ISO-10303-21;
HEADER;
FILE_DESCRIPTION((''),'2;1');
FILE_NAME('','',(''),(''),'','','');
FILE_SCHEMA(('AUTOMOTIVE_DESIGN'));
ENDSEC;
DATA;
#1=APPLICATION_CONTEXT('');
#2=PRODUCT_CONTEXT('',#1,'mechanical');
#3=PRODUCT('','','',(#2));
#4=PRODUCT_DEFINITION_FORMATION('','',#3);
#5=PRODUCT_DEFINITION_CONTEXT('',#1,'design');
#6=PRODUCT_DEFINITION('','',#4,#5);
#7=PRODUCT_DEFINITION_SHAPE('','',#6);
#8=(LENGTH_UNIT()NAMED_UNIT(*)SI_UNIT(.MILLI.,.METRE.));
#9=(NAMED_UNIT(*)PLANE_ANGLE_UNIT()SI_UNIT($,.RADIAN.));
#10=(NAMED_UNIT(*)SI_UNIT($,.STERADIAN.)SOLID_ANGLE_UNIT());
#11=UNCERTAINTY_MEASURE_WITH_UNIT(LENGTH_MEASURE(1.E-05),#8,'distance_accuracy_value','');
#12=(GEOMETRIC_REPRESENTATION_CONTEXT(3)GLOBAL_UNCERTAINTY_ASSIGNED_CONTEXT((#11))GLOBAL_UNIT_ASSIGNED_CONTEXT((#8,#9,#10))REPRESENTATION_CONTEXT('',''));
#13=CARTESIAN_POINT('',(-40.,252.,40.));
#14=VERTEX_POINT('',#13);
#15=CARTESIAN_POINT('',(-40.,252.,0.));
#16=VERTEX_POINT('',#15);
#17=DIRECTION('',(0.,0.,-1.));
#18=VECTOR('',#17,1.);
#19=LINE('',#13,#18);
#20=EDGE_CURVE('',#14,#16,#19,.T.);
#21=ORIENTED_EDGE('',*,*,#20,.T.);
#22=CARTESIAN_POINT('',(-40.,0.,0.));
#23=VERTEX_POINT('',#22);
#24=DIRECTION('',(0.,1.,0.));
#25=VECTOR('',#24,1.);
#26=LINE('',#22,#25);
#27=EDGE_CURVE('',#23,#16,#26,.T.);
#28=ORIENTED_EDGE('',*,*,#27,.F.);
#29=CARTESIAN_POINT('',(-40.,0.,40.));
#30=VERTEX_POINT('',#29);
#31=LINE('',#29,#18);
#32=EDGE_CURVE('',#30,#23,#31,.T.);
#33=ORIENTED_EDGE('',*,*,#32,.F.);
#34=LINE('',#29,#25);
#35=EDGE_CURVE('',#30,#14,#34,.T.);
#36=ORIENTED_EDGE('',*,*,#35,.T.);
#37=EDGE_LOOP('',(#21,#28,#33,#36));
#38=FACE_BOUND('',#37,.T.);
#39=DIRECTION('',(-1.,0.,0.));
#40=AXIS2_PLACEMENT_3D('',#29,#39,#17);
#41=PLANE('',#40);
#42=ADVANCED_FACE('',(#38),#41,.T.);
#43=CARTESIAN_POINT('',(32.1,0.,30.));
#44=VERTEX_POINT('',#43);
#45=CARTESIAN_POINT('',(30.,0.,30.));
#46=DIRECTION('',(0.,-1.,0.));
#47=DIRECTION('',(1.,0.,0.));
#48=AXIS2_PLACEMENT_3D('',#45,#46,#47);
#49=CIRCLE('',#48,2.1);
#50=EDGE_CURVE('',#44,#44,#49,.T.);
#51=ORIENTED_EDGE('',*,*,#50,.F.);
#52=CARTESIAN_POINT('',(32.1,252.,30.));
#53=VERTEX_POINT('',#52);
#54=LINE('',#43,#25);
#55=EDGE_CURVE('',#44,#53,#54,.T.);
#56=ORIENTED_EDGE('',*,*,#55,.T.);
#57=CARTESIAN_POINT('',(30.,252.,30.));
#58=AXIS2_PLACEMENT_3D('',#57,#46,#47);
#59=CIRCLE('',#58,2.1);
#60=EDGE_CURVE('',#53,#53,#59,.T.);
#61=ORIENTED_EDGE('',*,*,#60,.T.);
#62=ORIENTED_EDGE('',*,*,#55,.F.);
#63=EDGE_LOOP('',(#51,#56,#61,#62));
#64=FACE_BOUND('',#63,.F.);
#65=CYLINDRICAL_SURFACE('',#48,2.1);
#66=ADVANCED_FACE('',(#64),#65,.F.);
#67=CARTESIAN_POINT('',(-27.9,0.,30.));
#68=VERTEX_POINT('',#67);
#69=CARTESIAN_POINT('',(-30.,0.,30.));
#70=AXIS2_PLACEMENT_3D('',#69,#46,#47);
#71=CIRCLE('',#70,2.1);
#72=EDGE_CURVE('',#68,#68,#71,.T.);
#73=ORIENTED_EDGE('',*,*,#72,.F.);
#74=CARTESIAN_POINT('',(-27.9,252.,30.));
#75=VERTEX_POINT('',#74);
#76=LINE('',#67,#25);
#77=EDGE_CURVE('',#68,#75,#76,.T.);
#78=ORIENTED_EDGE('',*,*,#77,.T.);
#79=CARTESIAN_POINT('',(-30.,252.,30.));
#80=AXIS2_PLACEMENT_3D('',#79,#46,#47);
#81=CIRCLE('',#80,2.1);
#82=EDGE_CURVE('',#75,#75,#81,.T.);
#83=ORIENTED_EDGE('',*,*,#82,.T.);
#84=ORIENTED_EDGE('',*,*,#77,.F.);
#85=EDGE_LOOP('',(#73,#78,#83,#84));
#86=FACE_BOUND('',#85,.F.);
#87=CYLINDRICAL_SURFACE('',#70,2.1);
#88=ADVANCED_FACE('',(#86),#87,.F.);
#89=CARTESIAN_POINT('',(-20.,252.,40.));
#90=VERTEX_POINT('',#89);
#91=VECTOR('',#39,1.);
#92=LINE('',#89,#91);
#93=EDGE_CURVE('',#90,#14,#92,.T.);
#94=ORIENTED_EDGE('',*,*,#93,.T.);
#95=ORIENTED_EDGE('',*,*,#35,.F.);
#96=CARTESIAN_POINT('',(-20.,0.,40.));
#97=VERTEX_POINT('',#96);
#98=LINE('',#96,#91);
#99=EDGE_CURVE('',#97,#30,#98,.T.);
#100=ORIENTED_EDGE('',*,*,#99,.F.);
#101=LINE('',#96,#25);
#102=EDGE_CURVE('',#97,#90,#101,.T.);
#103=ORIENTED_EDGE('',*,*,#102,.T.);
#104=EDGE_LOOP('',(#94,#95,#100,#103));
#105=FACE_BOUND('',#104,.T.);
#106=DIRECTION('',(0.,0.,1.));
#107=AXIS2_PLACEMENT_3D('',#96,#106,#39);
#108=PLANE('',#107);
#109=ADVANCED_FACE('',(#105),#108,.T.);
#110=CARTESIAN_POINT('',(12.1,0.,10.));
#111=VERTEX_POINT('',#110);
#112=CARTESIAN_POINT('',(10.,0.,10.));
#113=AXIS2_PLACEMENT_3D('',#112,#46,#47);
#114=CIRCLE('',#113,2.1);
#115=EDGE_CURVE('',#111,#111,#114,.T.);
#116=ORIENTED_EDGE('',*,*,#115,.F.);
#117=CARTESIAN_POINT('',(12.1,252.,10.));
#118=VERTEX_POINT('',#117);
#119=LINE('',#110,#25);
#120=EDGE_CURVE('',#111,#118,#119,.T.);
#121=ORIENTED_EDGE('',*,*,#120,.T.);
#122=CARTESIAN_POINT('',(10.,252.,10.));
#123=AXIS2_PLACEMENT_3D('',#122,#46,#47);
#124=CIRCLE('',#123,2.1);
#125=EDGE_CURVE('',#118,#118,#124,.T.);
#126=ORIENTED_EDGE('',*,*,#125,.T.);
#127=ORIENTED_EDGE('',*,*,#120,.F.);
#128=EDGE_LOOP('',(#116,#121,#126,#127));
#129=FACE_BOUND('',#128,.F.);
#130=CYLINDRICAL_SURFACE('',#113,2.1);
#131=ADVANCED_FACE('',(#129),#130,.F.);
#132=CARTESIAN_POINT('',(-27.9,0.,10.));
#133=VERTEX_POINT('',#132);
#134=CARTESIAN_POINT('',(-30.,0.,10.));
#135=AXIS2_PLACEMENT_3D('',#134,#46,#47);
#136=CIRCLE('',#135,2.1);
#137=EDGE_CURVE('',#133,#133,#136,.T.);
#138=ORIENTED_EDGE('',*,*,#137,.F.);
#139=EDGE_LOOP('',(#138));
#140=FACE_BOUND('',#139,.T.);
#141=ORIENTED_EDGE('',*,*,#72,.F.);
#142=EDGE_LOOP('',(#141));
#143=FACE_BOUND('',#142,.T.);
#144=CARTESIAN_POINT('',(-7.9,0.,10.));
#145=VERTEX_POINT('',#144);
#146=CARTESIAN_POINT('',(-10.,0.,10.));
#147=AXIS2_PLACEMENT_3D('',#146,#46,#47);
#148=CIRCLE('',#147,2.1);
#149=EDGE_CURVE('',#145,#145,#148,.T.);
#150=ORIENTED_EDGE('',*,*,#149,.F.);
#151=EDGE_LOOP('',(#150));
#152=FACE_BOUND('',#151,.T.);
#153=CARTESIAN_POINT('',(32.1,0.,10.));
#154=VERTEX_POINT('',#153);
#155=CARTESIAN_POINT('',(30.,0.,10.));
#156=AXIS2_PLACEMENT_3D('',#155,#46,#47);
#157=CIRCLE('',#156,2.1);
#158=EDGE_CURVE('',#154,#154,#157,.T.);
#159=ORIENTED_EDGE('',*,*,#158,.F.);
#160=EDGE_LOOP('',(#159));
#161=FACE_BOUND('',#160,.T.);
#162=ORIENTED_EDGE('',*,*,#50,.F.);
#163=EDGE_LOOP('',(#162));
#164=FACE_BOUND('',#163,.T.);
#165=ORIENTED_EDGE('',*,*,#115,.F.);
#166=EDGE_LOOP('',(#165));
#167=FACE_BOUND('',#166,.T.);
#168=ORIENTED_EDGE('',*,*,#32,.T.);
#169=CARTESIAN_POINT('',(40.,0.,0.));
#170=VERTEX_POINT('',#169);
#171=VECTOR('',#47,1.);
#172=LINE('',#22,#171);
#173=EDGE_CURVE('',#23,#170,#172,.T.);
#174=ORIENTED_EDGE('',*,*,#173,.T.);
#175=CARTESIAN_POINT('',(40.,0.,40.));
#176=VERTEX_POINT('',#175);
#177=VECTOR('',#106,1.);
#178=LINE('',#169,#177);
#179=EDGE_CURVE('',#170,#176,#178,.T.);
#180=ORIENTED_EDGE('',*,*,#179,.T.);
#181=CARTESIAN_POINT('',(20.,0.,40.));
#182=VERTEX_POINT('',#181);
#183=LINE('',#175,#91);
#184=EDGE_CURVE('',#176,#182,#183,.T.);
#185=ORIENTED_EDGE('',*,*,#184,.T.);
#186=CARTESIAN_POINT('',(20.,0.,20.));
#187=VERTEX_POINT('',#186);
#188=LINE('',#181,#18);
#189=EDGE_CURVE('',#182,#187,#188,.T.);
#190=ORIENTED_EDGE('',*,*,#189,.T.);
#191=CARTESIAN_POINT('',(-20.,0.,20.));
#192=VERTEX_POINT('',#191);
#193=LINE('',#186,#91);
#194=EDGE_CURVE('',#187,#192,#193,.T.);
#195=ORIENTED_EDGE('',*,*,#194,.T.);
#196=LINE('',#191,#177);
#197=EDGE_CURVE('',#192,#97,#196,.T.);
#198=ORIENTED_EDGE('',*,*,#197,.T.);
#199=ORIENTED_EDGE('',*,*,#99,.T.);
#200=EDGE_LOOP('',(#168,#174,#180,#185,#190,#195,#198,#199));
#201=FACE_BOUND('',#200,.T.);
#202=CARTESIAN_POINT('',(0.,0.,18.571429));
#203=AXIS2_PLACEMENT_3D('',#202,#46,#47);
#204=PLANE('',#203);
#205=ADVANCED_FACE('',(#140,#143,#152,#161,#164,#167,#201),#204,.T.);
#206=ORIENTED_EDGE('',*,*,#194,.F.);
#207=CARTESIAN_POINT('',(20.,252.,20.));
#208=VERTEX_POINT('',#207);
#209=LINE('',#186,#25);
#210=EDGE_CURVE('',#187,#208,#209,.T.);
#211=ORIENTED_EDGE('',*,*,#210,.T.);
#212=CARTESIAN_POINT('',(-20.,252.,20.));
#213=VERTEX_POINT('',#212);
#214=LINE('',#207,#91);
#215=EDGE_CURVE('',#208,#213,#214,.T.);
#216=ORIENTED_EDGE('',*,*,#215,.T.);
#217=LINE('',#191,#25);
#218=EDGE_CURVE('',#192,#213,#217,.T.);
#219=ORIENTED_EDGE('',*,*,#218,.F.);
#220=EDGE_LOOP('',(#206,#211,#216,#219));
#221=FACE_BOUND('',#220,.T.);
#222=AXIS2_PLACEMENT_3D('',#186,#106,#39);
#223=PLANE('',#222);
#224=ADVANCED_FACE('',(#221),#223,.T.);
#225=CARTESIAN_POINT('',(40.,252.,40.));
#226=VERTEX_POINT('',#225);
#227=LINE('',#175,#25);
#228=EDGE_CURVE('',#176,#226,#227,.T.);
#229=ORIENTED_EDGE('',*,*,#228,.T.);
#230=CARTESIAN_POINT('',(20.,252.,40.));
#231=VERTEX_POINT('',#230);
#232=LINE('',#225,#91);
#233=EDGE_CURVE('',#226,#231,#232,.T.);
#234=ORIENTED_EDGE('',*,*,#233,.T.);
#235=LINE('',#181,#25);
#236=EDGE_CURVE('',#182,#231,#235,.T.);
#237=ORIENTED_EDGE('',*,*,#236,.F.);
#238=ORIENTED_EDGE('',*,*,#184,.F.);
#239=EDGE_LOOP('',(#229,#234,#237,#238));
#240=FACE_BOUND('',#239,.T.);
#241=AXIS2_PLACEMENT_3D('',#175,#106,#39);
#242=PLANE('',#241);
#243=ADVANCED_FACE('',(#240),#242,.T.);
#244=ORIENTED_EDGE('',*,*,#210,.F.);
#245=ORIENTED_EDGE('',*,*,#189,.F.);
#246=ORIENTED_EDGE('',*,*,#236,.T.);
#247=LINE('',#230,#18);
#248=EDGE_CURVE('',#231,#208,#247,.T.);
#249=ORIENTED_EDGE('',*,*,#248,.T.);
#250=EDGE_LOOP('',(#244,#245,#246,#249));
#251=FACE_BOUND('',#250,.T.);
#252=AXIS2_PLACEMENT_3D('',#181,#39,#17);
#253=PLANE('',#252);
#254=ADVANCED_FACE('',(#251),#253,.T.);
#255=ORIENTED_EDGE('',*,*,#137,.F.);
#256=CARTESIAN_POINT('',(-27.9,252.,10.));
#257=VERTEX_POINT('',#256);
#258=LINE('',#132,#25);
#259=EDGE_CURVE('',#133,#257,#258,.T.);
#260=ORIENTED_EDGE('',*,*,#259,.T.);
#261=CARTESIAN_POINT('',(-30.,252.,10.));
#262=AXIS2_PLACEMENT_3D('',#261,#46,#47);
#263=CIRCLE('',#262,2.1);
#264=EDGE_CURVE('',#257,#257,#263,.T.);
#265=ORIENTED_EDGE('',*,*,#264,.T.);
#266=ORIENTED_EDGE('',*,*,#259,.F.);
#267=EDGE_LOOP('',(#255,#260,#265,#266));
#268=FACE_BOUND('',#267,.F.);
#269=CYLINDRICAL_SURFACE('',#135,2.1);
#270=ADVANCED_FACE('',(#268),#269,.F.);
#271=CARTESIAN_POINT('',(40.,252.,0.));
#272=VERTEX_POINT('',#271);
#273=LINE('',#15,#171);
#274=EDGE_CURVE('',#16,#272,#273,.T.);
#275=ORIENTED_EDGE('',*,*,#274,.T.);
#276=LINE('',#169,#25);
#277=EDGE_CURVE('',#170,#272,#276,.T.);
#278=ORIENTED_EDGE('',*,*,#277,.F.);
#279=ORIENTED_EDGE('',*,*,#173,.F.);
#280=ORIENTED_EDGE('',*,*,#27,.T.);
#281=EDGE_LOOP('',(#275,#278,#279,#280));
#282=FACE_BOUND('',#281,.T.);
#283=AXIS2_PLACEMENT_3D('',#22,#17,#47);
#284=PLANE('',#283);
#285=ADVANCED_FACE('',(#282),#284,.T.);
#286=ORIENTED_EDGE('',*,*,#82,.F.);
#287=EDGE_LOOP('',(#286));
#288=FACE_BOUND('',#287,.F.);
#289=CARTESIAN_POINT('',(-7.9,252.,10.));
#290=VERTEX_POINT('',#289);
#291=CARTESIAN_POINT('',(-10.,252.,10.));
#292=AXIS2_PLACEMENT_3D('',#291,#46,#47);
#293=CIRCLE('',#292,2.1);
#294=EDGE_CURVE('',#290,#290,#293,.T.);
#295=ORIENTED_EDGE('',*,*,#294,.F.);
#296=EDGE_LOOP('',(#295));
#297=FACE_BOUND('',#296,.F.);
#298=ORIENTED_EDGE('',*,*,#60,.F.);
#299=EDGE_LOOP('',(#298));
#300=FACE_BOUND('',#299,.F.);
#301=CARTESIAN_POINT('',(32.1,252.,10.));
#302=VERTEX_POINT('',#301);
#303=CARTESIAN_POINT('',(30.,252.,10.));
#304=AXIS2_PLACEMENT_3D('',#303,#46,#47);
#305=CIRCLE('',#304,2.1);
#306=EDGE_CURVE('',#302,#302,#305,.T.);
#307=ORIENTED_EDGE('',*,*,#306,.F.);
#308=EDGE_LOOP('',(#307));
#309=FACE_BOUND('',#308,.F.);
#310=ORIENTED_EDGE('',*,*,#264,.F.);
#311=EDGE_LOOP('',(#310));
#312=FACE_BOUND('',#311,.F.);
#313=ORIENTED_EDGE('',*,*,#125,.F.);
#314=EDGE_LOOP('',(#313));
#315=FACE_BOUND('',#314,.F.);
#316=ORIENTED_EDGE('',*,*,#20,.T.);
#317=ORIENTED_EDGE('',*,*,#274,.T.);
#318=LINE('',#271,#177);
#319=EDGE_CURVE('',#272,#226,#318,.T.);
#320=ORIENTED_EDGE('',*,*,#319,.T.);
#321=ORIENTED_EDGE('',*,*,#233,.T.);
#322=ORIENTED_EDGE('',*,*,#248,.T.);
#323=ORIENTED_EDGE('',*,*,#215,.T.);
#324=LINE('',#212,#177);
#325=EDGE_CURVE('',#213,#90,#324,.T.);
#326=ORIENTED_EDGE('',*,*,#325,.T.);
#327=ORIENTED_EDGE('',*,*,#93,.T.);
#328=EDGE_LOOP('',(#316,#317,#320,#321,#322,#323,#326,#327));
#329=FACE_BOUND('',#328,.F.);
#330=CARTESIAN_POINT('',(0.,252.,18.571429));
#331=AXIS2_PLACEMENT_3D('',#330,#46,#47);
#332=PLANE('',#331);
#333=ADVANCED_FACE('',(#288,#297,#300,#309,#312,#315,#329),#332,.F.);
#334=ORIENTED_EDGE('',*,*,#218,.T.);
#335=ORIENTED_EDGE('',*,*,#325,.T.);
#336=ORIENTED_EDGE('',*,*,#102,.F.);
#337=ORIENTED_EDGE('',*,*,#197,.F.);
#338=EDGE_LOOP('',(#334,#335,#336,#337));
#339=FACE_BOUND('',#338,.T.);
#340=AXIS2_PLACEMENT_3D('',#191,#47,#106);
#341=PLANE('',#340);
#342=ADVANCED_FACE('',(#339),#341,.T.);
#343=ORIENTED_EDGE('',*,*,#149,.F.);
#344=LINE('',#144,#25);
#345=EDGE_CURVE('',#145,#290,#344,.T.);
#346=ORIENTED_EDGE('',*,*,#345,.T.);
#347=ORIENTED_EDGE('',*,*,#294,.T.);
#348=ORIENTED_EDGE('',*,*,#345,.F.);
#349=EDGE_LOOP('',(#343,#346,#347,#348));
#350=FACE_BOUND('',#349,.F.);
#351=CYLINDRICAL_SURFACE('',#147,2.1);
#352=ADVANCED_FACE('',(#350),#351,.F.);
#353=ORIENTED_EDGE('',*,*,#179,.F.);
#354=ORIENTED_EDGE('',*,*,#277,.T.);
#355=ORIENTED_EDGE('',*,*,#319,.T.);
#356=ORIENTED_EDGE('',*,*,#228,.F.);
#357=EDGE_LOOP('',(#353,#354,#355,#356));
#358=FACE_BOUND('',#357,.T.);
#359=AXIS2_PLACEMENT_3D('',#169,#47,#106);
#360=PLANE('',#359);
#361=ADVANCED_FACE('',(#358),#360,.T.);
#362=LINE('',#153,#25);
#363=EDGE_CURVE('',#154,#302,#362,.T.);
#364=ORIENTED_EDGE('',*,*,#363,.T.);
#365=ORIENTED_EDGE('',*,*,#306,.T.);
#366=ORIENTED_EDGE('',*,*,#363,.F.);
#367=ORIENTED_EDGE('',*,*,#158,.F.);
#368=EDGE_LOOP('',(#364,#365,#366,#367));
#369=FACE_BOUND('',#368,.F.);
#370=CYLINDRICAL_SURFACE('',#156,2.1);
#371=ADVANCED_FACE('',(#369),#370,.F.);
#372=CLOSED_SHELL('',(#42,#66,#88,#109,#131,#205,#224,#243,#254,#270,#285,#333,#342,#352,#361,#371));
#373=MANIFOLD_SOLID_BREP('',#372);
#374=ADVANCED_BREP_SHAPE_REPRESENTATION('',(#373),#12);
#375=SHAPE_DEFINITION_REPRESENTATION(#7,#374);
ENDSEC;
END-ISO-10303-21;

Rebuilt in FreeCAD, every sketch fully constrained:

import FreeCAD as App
import Part
import Sketcher
from FreeCAD import Vector
Q = App.Units.Quantity


def add_polygon(sketch, points):
    """Adds a closed chain of lines whose ends are joined by coincident constraints."""
    first, n = sketch.GeometryCount, len(points)
    for a, b in zip(points, points[1:] + points[:1]):
        sketch.addGeometry(Part.LineSegment(App.Vector(*a, 0), App.Vector(*b, 0)), False)
    for i in range(n):
        sketch.addConstraint(Sketcher.Constraint("Coincident", first + i, 2, first + (i + 1) % n, 1))

doc = App.newDocument("Part")
body = doc.addObject("PartDesign::Body", "Body")

sketch1 = doc.addObject("Sketcher::SketchObject", "Sketch")
body.addObject(sketch1)
sketch1.AttachmentSupport = (doc.XZ_Plane, [""])
sketch1.MapMode = "FlatFace"
add_polygon(sketch1, [(-20, 40), (-40, 40), (-40, 0), (40, 0), (40, 40), (20, 40), (20, 20), (-20, 20)])
sketch1.addGeometry(Part.Circle(Vector(-30, 10, 0), Vector(0, 0, 1), 2.1), False)
sketch1.addGeometry(Part.Circle(Vector(-10, 10, 0), Vector(0, 0, 1), 2.1), False)
sketch1.addGeometry(Part.Circle(Vector(10, 10, 0), Vector(0, 0, 1), 2.1), False)
sketch1.addGeometry(Part.Circle(Vector(30, 10, 0), Vector(0, 0, 1), 2.1), False)
sketch1.addGeometry(Part.Circle(Vector(-30, 30, 0), Vector(0, 0, 1), 2.1), False)
sketch1.addGeometry(Part.Circle(Vector(30, 30, 0), Vector(0, 0, 1), 2.1), False)
sketch1.addConstraint([
    Sketcher.Constraint("Horizontal", 0),
    Sketcher.Constraint("Vertical", 1),
    Sketcher.Constraint("Horizontal", 2),
    Sketcher.Constraint("Vertical", 3),
    Sketcher.Constraint("Horizontal", 4),
    Sketcher.Constraint("Vertical", 5),
    Sketcher.Constraint("Horizontal", 6),
    Sketcher.Constraint("Vertical", 7),
    Sketcher.Constraint("Equal", 8, 9),
    Sketcher.Constraint("Equal", 9, 10),
    Sketcher.Constraint("Equal", 10, 11),
    Sketcher.Constraint("Equal", 11, 12),
    Sketcher.Constraint("Equal", 12, 13),
    Sketcher.Constraint("Symmetric", 1, 2, 2, 2, -1, 1),
    Sketcher.Constraint("Symmetric", 9, 3, 10, 3, -2),
    Sketcher.Constraint("Symmetric", 8, 3, 11, 3, -2),
    Sketcher.Constraint("Symmetric", 12, 3, 13, 3, -2),
    Sketcher.Constraint("Symmetric", 4, 2, 7, 2, -2),
    Sketcher.Constraint("Horizontal", 8, 3, 9, 3),
    Sketcher.Constraint("Vertical", 8, 3, 12, 3),
    Sketcher.Constraint("Equal", 6, 1),
    Sketcher.Constraint("Equal", 4, 5),
    Sketcher.Constraint("Diameter", 8, Q("4.2 mm")),
    Sketcher.Constraint("DistanceX", 0, 2, 0, 1, Q("20 mm")),
    Sketcher.Constraint("DistanceX", 2, 1, 2, 2, Q("80 mm")),
    Sketcher.Constraint("DistanceX", 8, 3, -1, 1, Q("30 mm")),
    Sketcher.Constraint("DistanceY", -1, 1, 8, 3, Q("10 mm")),
    Sketcher.Constraint("DistanceX", 9, 3, -1, 1, Q("10 mm")),
    Sketcher.Constraint("DistanceY", -1, 1, 12, 3, Q("30 mm")),
])
pad1 = doc.addObject("PartDesign::Pad", "Pad")
body.addObject(pad1)
pad1.Profile = sketch1
pad1.Length = 252
pad1.Reversed = True

doc.recompute()
